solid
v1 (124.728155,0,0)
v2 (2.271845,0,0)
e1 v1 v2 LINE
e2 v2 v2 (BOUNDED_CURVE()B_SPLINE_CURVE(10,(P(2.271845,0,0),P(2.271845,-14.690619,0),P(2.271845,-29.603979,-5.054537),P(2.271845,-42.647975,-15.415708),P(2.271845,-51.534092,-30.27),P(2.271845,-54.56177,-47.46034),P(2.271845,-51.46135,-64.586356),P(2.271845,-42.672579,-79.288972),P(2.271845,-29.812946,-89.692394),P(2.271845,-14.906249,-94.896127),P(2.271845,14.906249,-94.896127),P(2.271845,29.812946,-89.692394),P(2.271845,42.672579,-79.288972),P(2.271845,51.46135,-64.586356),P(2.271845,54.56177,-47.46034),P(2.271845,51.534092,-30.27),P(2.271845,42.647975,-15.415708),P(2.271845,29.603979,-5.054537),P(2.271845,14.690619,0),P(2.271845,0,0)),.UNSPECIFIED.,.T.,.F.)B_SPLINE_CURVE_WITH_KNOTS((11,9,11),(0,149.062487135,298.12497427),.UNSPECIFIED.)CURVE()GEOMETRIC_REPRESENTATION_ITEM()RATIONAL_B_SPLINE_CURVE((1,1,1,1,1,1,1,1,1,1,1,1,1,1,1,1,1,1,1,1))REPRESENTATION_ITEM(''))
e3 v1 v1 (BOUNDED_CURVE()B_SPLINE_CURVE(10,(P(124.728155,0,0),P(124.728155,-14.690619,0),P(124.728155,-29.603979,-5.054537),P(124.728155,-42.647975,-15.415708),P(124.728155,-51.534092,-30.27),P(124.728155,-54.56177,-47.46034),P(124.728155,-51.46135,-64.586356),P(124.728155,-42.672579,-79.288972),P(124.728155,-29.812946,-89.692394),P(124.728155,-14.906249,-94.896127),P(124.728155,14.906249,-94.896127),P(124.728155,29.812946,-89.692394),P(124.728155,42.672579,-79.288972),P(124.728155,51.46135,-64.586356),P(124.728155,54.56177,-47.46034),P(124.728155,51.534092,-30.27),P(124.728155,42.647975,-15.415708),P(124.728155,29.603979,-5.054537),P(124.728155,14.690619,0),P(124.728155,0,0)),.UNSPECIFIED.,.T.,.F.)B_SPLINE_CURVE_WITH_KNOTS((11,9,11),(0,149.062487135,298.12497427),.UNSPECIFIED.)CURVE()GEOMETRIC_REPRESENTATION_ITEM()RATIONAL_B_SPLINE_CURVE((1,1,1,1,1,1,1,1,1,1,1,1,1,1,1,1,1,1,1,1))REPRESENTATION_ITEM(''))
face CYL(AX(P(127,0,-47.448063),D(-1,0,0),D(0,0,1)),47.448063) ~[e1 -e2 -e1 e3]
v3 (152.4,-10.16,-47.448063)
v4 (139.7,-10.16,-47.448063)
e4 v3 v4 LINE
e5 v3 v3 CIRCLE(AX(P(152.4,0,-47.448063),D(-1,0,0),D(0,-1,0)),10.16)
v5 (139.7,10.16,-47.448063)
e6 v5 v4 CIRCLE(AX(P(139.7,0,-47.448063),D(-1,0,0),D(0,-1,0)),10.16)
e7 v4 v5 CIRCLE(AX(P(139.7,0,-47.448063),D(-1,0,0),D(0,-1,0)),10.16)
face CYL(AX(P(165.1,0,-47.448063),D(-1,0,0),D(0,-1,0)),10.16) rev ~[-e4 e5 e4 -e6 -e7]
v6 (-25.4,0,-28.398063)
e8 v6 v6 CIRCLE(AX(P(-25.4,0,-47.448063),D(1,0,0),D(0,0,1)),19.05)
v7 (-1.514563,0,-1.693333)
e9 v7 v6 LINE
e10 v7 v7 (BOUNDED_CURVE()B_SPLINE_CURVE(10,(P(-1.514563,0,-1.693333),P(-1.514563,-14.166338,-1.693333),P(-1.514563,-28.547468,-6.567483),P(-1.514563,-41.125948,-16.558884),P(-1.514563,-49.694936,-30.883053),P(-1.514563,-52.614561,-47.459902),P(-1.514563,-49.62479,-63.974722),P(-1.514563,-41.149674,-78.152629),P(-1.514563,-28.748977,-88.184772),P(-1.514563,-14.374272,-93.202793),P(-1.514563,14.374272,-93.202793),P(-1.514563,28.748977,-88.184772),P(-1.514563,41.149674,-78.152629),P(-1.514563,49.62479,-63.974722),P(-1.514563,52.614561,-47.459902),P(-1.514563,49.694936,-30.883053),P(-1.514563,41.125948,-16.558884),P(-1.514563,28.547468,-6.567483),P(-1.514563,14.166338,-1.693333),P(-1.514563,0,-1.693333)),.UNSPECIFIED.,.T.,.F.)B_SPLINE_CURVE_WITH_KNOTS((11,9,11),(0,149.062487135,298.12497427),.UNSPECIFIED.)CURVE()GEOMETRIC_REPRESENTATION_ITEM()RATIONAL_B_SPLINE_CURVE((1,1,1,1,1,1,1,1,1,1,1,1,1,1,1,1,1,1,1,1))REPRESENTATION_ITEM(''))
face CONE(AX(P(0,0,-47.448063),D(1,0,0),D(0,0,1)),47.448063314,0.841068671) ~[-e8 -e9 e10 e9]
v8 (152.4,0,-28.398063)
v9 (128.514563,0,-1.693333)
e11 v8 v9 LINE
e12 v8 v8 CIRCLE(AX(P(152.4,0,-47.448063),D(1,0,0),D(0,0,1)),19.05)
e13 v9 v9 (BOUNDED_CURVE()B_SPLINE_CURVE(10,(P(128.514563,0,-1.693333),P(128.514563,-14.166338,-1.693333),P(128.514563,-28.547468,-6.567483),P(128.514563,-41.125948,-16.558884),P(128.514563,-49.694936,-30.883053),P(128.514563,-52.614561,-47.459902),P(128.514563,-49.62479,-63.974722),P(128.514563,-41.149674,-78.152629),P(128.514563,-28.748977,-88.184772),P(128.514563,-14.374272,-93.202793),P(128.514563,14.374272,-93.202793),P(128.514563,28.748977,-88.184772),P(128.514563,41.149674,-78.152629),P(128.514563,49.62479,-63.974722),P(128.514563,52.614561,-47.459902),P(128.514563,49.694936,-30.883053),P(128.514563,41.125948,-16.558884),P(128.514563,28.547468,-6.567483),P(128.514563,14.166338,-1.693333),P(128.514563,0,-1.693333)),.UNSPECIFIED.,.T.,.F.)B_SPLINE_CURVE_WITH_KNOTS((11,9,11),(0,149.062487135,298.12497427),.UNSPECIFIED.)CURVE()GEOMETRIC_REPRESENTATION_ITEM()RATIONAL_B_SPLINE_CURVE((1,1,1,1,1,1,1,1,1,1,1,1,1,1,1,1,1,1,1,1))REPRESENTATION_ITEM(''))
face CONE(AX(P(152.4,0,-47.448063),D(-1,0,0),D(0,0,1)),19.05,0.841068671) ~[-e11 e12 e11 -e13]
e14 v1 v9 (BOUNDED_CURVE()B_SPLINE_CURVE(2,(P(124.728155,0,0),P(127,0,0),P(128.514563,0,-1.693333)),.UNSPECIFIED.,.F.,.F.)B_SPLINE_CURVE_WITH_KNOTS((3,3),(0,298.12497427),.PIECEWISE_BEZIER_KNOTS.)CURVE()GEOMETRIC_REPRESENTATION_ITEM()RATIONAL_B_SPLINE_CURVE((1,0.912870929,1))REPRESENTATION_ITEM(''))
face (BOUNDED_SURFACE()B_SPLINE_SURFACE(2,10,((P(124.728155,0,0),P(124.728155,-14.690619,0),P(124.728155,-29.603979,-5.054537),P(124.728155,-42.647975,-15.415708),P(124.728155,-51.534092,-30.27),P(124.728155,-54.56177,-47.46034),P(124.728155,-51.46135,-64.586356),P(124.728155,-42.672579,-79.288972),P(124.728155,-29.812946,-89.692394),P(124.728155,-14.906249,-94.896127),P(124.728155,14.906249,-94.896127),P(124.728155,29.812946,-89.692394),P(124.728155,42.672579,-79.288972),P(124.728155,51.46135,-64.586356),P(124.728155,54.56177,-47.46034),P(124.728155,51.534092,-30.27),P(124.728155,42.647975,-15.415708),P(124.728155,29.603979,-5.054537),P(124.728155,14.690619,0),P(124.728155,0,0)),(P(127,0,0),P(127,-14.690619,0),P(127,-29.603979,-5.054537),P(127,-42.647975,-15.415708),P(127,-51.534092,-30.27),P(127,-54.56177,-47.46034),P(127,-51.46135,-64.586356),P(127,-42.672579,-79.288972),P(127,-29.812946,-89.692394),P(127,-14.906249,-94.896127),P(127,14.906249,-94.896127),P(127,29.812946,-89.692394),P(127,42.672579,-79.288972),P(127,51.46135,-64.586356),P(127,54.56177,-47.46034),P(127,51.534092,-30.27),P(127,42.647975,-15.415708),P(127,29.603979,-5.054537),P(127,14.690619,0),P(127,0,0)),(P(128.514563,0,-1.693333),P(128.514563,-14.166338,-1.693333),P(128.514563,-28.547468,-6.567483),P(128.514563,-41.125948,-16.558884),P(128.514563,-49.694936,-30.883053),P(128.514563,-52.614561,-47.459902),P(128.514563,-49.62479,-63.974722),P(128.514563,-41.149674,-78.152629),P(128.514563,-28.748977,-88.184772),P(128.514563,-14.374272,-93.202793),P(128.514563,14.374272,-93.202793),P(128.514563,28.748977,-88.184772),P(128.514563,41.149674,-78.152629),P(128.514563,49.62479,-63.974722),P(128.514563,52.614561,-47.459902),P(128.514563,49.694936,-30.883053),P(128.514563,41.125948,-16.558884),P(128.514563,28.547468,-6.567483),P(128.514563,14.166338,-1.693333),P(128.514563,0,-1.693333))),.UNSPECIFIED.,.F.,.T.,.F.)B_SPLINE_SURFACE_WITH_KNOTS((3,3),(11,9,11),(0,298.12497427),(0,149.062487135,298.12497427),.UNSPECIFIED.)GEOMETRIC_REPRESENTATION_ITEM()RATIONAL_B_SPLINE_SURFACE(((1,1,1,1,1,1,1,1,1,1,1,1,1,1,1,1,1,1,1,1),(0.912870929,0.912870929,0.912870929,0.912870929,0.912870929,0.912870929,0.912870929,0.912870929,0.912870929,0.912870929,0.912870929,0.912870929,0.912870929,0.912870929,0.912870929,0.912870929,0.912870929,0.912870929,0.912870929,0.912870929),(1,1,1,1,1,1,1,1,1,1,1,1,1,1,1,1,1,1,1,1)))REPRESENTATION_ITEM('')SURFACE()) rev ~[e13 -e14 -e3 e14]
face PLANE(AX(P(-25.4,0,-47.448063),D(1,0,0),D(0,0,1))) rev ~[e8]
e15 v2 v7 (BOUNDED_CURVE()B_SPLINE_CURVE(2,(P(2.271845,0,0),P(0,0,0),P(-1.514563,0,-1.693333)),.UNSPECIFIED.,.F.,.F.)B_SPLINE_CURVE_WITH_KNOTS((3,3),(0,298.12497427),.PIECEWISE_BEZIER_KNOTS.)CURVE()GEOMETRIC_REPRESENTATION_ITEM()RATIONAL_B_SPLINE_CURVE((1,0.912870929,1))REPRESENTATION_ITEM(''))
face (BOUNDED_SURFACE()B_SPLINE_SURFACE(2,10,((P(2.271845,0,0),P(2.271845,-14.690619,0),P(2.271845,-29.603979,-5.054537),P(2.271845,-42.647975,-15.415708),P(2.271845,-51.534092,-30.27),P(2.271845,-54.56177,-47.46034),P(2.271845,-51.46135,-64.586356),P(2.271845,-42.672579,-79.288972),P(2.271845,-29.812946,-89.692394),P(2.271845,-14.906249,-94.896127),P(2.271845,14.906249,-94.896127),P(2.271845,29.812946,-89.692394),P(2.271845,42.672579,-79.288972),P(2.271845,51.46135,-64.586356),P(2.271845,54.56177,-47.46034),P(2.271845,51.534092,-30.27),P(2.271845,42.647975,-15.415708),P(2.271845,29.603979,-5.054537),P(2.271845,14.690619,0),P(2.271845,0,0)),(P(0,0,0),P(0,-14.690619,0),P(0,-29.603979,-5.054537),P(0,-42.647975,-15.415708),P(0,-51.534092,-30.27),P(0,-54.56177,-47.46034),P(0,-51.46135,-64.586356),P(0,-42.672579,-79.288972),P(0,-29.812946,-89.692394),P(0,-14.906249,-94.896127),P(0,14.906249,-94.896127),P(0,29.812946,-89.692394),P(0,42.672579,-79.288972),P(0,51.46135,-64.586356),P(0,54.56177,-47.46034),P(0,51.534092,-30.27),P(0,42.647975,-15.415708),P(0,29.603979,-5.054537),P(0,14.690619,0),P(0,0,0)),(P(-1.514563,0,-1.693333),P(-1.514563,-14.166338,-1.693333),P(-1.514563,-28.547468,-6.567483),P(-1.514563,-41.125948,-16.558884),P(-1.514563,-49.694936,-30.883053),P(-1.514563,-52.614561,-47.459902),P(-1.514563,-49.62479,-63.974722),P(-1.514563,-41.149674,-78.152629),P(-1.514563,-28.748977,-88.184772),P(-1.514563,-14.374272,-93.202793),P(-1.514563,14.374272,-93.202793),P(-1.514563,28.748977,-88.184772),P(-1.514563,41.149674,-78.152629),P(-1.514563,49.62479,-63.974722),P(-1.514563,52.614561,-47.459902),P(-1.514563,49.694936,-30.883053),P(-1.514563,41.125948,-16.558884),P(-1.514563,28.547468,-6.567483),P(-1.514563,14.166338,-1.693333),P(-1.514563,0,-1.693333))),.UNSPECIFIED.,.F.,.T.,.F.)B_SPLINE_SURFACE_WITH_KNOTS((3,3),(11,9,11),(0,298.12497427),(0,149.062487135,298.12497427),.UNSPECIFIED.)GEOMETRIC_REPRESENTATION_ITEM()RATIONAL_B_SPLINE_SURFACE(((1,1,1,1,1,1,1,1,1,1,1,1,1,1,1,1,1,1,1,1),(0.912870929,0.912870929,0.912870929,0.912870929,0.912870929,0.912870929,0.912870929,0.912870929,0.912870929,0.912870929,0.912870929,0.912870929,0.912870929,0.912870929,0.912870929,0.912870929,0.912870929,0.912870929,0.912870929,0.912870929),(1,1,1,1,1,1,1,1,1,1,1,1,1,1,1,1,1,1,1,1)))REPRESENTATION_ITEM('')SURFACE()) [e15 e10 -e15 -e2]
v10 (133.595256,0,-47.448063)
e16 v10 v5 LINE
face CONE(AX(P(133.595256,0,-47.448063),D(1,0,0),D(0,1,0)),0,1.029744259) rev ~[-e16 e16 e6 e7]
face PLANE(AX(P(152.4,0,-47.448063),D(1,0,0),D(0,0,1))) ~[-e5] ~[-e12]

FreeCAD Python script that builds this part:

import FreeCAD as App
import Part
import Sketcher

V = App.Vector
Q = App.Units.Quantity


def edges_at(feature, points):
    """Names of the edges that pass closest to the given points."""
    edges = feature.Shape.Edges
    near = lambda p: min(range(len(edges)), key=lambda i: edges[i].distToShape(Part.Vertex(*p))[0])
    return sorted({f"Edge{near(p) + 1}" for p in points})


def add_polygon(sketch, points):
    """Adds a closed chain of lines whose ends are joined by coincident constraints."""
    first, n = sketch.GeometryCount, len(points)
    for a, b in zip(points, points[1:] + points[:1]):
        sketch.addGeometry(Part.LineSegment(App.Vector(*a, 0), App.Vector(*b, 0)), False)
    for i in range(n):
        sketch.addConstraint(Sketcher.Constraint("Coincident", first + i, 2, first + (i + 1) % n, 1))

doc = App.newDocument("Part")
body = doc.addObject("PartDesign::Body", "Body")

# Sketch on XZ plane
sketch1 = doc.addObject("Sketcher::SketchObject", "Sketch")
body.addObject(sketch1)
sketch1.AttachmentSupport = (doc.XZ_Plane, [""])
sketch1.MapMode = "FlatFace"
add_polygon(sketch1, [(127, 0), (0, 0), (-25, -28), (-25, -47), (152, -47), (152, -28)])  # lines 0-5
sketch1.addGeometry(Part.LineSegment(V(-25, -47, 0), V(152, -47, 0)), True)  # axis
sketch1.addConstraint(Sketcher.Constraint("Horizontal", 0))
sketch1.addConstraint(Sketcher.Constraint("Vertical", 2))
sketch1.addConstraint(Sketcher.Constraint("Horizontal", 3))
sketch1.addConstraint(Sketcher.Constraint("Vertical", 4))
sketch1.addConstraint(Sketcher.Constraint("Horizontal", 6))
sketch1.addConstraint(Sketcher.Constraint("Coincident", 0, 2, -1, 1))
sketch1.addConstraint(Sketcher.Constraint("Coincident", 6, 1, 2, 2))
sketch1.addConstraint(Sketcher.Constraint("Horizontal", 1, 2, 4, 2))
sketch1.addConstraint(Sketcher.Constraint("Vertical", 4, 2, 6, 2))
sketch1.addConstraint(Sketcher.Constraint("Equal", 1, 5))
sketch1.addConstraint(Sketcher.Constraint("DistanceX", 0, 2, 0, 1, Q("5 in")))
sketch1.addConstraint(Sketcher.Constraint("DistanceX", 3, 1, 3, 2, Q("7 in")))
sketch1.addConstraint(Sketcher.Constraint("Distance", 1, Q("1.5 in")))
sketch1.addConstraint(Sketcher.Constraint("DistanceY", 2, 2, 2, 1, Q("0.75 in")))
revolution = doc.addObject("PartDesign::Revolution", "Revolution")
body.addObject(revolution)
revolution.Profile = sketch1
revolution.ReferenceAxis = (sketch1, ["Axis0"])
revolution.Angle = 360

# Sketch on YZ plane
sketch2 = doc.addObject("Sketcher::SketchObject", "Sketch001")
body.addObject(sketch2)
sketch2.AttachmentSupport = (doc.YZ_Plane, [""])
sketch2.MapMode = "FlatFace"
sketch2.AttachmentOffset = App.Placement(V(0, 0, 6 * 25.4), App.Rotation())
sketch2.addGeometry(Part.Circle(V(0, -47, 0), V(0, 0, 1), 10), False)
sketch2.addConstraint(Sketcher.Constraint("PointOnObject", 0, 3, -2))
sketch2.addConstraint(Sketcher.Constraint("Diameter", 0, Q("0.8 in")))
sketch2.addConstraint(Sketcher.Constraint("DistanceY", 0, 3, -1, 1, Q("47.448063 mm")))
doc.recompute()
hole = doc.addObject("PartDesign::Hole", "Hole")
body.addObject(hole)
hole.Profile = sketch2
hole.ThreadType = "None"
hole.Diameter = Q("0.8 in")
hole.DepthType = "Dimension"
hole.Depth = Q("0.5 in")
hole.DrillPoint = "Angled"
hole.DrillPointAngle = 118
doc.recompute()

fillet = doc.addObject("PartDesign::Fillet", "Fillet")
body.addObject(fillet)
fillet.Base = (hole, edges_at(hole, [(127, 0, -94.896)]))
fillet.Radius = Q("0.2 in")
doc.recompute()

fillet2 = doc.addObject("PartDesign::Fillet", "Fillet001")
body.addObject(fillet2)
fillet2.Base = (fillet, edges_at(fillet, [(0, 0, -94.896)]))
fillet2.Radius = Q("0.2 in")

doc.recompute()
